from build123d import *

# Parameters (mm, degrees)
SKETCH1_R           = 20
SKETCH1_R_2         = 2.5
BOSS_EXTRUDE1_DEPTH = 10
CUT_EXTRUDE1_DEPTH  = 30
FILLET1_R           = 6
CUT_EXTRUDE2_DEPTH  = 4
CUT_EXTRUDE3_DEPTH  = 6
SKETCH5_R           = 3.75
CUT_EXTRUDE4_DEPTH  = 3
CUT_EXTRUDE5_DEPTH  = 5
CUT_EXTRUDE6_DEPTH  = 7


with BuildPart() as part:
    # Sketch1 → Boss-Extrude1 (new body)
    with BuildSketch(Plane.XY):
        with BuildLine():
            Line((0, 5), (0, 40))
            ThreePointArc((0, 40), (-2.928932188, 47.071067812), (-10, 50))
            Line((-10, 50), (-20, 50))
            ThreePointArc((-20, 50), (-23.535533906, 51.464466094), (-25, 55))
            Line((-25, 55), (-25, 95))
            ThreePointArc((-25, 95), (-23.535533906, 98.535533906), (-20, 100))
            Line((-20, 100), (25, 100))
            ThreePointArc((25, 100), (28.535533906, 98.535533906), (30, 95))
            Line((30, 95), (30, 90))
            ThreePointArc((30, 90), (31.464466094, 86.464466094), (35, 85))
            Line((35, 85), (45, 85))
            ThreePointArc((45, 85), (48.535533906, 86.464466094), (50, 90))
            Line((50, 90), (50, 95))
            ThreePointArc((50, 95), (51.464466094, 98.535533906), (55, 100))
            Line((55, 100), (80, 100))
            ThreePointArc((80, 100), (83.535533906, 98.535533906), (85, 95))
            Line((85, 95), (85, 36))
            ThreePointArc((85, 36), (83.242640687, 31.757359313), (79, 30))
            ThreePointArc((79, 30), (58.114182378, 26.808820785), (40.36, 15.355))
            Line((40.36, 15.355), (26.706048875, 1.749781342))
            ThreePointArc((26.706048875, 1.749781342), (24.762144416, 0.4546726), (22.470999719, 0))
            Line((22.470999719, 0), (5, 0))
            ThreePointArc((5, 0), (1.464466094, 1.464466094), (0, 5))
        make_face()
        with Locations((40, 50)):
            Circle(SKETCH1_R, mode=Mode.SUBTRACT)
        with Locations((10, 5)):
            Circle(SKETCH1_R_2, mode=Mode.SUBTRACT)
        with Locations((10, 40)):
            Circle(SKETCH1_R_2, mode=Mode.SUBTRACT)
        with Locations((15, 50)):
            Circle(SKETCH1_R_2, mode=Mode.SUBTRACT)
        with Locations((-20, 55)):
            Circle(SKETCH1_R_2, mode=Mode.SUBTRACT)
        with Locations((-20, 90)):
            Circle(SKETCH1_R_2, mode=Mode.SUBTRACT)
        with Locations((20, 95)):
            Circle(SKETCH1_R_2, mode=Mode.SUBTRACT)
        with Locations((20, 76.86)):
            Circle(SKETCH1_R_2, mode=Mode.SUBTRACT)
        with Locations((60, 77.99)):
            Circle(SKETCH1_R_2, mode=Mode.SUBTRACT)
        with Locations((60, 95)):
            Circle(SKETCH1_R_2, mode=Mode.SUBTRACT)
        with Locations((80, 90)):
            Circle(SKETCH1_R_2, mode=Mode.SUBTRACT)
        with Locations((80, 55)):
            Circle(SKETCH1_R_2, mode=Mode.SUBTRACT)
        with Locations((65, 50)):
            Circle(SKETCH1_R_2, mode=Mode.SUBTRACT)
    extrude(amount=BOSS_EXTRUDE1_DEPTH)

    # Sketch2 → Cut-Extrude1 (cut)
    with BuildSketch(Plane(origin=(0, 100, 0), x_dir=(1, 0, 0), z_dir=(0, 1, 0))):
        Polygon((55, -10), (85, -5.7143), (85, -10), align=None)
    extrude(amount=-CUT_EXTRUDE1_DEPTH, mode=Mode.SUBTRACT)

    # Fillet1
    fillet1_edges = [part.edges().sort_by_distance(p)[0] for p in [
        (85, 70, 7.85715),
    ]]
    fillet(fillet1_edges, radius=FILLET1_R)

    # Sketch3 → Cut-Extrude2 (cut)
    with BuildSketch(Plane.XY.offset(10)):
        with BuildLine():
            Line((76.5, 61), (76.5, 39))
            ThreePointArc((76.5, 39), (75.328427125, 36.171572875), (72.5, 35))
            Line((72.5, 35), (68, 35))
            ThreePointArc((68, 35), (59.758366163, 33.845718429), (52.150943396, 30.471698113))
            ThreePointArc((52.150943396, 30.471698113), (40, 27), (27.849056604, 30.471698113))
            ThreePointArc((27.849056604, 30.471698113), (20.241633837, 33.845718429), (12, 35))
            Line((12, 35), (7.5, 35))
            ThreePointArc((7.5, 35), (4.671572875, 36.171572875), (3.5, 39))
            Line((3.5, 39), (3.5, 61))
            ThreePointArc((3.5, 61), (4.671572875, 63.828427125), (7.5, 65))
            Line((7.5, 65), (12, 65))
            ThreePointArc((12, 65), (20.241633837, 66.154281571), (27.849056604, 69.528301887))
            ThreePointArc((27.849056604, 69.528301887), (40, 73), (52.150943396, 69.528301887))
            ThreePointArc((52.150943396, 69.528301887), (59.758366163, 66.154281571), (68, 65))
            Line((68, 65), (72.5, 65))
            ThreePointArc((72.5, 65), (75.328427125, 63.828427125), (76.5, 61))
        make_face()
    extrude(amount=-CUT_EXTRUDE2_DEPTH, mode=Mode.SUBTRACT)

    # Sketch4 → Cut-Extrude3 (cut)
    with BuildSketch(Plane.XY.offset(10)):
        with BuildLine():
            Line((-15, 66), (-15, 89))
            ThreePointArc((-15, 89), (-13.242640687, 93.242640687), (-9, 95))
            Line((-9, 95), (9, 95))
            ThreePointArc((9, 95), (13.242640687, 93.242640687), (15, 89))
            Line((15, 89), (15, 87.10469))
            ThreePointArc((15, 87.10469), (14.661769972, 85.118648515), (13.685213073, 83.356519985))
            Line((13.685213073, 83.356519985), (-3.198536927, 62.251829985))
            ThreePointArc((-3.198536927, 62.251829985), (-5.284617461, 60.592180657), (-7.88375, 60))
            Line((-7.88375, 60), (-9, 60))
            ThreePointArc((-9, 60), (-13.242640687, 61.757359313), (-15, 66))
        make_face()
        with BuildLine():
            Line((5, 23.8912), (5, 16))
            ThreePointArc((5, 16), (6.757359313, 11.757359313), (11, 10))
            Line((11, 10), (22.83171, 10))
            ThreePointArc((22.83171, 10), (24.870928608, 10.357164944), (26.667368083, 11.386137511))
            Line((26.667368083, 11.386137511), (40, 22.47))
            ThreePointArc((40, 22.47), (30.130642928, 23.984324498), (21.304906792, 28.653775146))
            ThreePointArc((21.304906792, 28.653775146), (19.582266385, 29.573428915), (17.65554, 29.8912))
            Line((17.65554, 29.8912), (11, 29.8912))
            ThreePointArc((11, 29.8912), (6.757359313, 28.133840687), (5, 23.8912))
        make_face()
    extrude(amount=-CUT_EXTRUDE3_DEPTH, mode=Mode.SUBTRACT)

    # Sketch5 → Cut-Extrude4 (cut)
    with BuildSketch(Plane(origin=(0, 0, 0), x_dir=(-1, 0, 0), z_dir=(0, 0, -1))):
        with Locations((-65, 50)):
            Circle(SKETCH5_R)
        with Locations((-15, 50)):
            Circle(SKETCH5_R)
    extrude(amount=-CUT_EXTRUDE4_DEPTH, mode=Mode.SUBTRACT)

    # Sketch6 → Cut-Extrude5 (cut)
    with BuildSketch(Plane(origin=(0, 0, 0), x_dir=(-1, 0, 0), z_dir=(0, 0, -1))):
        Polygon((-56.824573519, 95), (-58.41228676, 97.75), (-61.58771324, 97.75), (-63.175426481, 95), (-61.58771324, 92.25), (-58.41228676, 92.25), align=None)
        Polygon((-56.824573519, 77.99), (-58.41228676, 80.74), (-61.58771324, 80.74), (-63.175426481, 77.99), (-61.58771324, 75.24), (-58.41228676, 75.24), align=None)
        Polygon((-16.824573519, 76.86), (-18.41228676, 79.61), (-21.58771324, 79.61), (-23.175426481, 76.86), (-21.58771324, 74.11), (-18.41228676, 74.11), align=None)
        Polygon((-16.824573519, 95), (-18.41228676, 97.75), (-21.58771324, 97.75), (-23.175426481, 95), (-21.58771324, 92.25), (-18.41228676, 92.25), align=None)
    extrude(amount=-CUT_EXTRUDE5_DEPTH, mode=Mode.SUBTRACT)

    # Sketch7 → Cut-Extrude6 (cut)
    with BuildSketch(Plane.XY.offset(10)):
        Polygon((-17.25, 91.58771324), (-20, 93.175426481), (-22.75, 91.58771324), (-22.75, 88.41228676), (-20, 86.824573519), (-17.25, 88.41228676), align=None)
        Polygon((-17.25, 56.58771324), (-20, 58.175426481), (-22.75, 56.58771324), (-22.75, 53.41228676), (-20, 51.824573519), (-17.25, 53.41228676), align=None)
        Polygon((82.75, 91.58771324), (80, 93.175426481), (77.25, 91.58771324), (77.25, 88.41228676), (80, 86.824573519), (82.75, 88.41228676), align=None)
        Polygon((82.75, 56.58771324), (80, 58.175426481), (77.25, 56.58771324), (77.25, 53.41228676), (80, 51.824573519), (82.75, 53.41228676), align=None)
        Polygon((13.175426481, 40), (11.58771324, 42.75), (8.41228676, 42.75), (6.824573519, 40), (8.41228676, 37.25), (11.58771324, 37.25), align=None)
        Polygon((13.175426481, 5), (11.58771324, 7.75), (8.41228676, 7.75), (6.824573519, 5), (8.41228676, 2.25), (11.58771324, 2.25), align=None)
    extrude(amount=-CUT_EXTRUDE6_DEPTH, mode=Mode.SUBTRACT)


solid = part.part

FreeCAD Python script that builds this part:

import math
import FreeCAD as App
import Part
import Sketcher
Q = App.Units.Quantity


def edges_at(feature, points):
    """Names of the edges that pass closest to the given points."""
    edges = feature.Shape.Edges
    near = lambda p: min(range(len(edges)), key=lambda i: edges[i].distToShape(Part.Vertex(*p))[0])
    return sorted({f"Edge{near(p) + 1}" for p in points})

doc = App.newDocument("Part")
body = doc.addObject("PartDesign::Body", "Body")

# Sketch on XY plane
sketch1 = body.newObject("Sketcher::SketchObject", "Sketch")
sketch1.AttachmentSupport = (doc.getObject("XY_Plane"), [""])
sketch1.MapMode = "FlatFace"
sketch1.addGeometry([
    Part.LineSegment(App.Vector(0, 40, 0), App.Vector(0, 5, 0)),  # 0
    Part.ArcOfCircle(Part.Circle(App.Vector(5, 5, 0), App.Vector(0, 0, 1), 5), math.radians(180), math.radians(270)),  # 1
    Part.LineSegment(App.Vector(5, 0, 0), App.Vector(22.5, 0, 0)),  # 2
    Part.ArcOfCircle(Part.Circle(App.Vector(22.5, 6, 0), App.Vector(0, 0, 1), 6), math.radians(-90), math.radians(-45)),  # 3
    Part.LineSegment(App.Vector(26.7, 1.7, 0), App.Vector(40.4, 15.4, 0)),  # 4
    Part.ArcOfCircle(Part.Circle(App.Vector(76, -20.4, 0), App.Vector(0, 0, 1), 50.5), math.radians(87), math.radians(135)),  # 5
    Part.ArcOfCircle(Part.Circle(App.Vector(79, 36, 0), App.Vector(0, 0, 1), 6), math.radians(-90), math.radians(0)),  # 6
    Part.LineSegment(App.Vector(85, 36, 0), App.Vector(85, 95, 0)),  # 7
    Part.ArcOfCircle(Part.Circle(App.Vector(80, 95, 0), App.Vector(0, 0, 1), 5), math.radians(0), math.radians(90)),  # 8
    Part.LineSegment(App.Vector(80, 100, 0), App.Vector(55, 100, 0)),  # 9
    Part.ArcOfCircle(Part.Circle(App.Vector(55, 95, 0), App.Vector(0, 0, 1), 5), math.radians(90), math.radians(180)),  # 10
    Part.LineSegment(App.Vector(50, 95, 0), App.Vector(50, 90, 0)),  # 11
    Part.ArcOfCircle(Part.Circle(App.Vector(45, 90, 0), App.Vector(0, 0, 1), 5), math.radians(-90), math.radians(0)),  # 12
    Part.LineSegment(App.Vector(45, 85, 0), App.Vector(35, 85, 0)),  # 13
    Part.ArcOfCircle(Part.Circle(App.Vector(35, 90, 0), App.Vector(0, 0, 1), 5), math.radians(180), math.radians(270)),  # 14
    Part.LineSegment(App.Vector(30, 90, 0), App.Vector(30, 95, 0)),  # 15
    Part.ArcOfCircle(Part.Circle(App.Vector(25, 95, 0), App.Vector(0, 0, 1), 5), math.radians(0), math.radians(90)),  # 16
    Part.LineSegment(App.Vector(25, 100, 0), App.Vector(-20, 100, 0)),  # 17
    Part.ArcOfCircle(Part.Circle(App.Vector(-20, 95, 0), App.Vector(0, 0, 1), 5), math.radians(90), math.radians(180)),  # 18
    Part.LineSegment(App.Vector(-25, 95, 0), App.Vector(-25, 55, 0)),  # 19
    Part.ArcOfCircle(Part.Circle(App.Vector(-20, 55, 0), App.Vector(0, 0, 1), 5), math.radians(180), math.radians(270)),  # 20
    Part.LineSegment(App.Vector(-20, 50, 0), App.Vector(-10, 50, 0)),  # 21
    Part.ArcOfCircle(Part.Circle(App.Vector(-10, 40, 0), App.Vector(0, 0, 1), 10), math.radians(0), math.radians(90)),  # 22
    Part.Circle(App.Vector(10, 5, 0), App.Vector(0, 0, 1), 2.5),  # 23
    Part.Circle(App.Vector(10, 40, 0), App.Vector(0, 0, 1), 2.5),  # 24
    Part.Circle(App.Vector(80, 55, 0), App.Vector(0, 0, 1), 2.5),  # 25
    Part.Circle(App.Vector(65, 50, 0), App.Vector(0, 0, 1), 2.5),  # 26
    Part.Circle(App.Vector(40, 50, 0), App.Vector(0, 0, 1), 20),  # 27
    Part.Circle(App.Vector(60, 78, 0), App.Vector(0, 0, 1), 2.5),  # 28
    Part.Circle(App.Vector(80, 90, 0), App.Vector(0, 0, 1), 2.5),  # 29
    Part.Circle(App.Vector(60, 95, 0), App.Vector(0, 0, 1), 2.5),  # 30
    Part.Circle(App.Vector(15, 50, 0), App.Vector(0, 0, 1), 2.5),  # 31
    Part.Circle(App.Vector(-20, 55, 0), App.Vector(0, 0, 1), 2.5),  # 32
    Part.Circle(App.Vector(20, 76.9, 0), App.Vector(0, 0, 1), 2.5),  # 33
    Part.Circle(App.Vector(20, 95, 0), App.Vector(0, 0, 1), 2.5),  # 34
    Part.Circle(App.Vector(-20, 90, 0), App.Vector(0, 0, 1), 2.5),  # 35
], False)
sketch1.addConstraint([
    Sketcher.Constraint("Tangent", 0, 2, 1, 1),
    Sketcher.Constraint("Tangent", 1, 2, 2, 1),
    Sketcher.Constraint("Tangent", 2, 2, 3, 1),
    Sketcher.Constraint("Tangent", 3, 2, 4, 1),
    Sketcher.Constraint("Tangent", 4, 2, 5, 2),
    Sketcher.Constraint("Coincident", 5, 1, 6, 1),
    Sketcher.Constraint("Tangent", 6, 2, 7, 1),
    Sketcher.Constraint("Tangent", 7, 2, 8, 1),
    Sketcher.Constraint("Tangent", 8, 2, 9, 1),
    Sketcher.Constraint("Tangent", 9, 2, 10, 1),
    Sketcher.Constraint("Tangent", 10, 2, 11, 1),
    Sketcher.Constraint("Tangent", 11, 2, 12, 2),
    Sketcher.Constraint("Tangent", 12, 1, 13, 1),
    Sketcher.Constraint("Tangent", 13, 2, 14, 2),
    Sketcher.Constraint("Tangent", 14, 1, 15, 1),
    Sketcher.Constraint("Tangent", 15, 2, 16, 1),
    Sketcher.Constraint("Tangent", 16, 2, 17, 1),
    Sketcher.Constraint("Tangent", 17, 2, 18, 1),
    Sketcher.Constraint("Tangent", 18, 2, 19, 1),
    Sketcher.Constraint("Tangent", 19, 2, 20, 1),
    Sketcher.Constraint("Tangent", 20, 2, 21, 1),
    Sketcher.Constraint("Tangent", 21, 2, 22, 2),
    Sketcher.Constraint("Tangent", 22, 1, 0, 1),
    Sketcher.Constraint("Vertical", 0),
    Sketcher.Constraint("Horizontal", 2),
    Sketcher.Constraint("Vertical", 7),
    Sketcher.Constraint("Horizontal", 9),
    Sketcher.Constraint("Vertical", 11),
    Sketcher.Constraint("Horizontal", 13),
    Sketcher.Constraint("Vertical", 15),
    Sketcher.Constraint("Horizontal", 17),
    Sketcher.Constraint("Vertical", 19),
    Sketcher.Constraint("Horizontal", 21),
    Sketcher.Constraint("Coincident", 32, 3, 20, 3),
    Sketcher.Constraint("Equal", 3, 6),
    Sketcher.Constraint("Equal", 1, 8),
    Sketcher.Constraint("Equal", 8, 10),
    Sketcher.Constraint("Equal", 10, 12),
    Sketcher.Constraint("Equal", 12, 14),
    Sketcher.Constraint("Equal", 14, 16),
    Sketcher.Constraint("Equal", 16, 18),
    Sketcher.Constraint("Equal", 18, 20),
    Sketcher.Constraint("Equal", 23, 24),
    Sketcher.Constraint("Equal", 24, 25),
    Sketcher.Constraint("Equal", 25, 26),
    Sketcher.Constraint("Equal", 26, 28),
    Sketcher.Constraint("Equal", 28, 29),
    Sketcher.Constraint("Equal", 29, 30),
    Sketcher.Constraint("Equal", 30, 31),
    Sketcher.Constraint("Equal", 31, 32),
    Sketcher.Constraint("Equal", 32, 33),
    Sketcher.Constraint("Equal", 33, 34),
    Sketcher.Constraint("Equal", 34, 35),
    Sketcher.Constraint("Symmetric", 22, 3, 24, 3, -2),
    Sketcher.Constraint("Symmetric", 18, 3, 34, 3, -2),
    Sketcher.Constraint("PointOnObject", 0, 2, -2),
    Sketcher.Constraint("PointOnObject", 1, 2, -1),
    Sketcher.Constraint("Horizontal", 10, 3, 16, 3),
    Sketcher.Constraint("Horizontal", 1, 3, 23, 3),
    Sketcher.Constraint("Horizontal", 20, 3, 25, 3),
    Sketcher.Constraint("Horizontal", 26, 3, 27, 3),
    Sketcher.Constraint("Horizontal", 14, 3, 29, 3),
    Sketcher.Constraint("Horizontal", 18, 3, 30, 3),
    Sketcher.Constraint("Horizontal", 27, 3, 31, 3),
    Sketcher.Constraint("Horizontal", 29, 3, 35, 3),
    Sketcher.Constraint("Horizontal", 31, 3, 20, 2),
    Sketcher.Constraint("Vertical", 23, 3, 24, 3),
    Sketcher.Constraint("Vertical", 8, 3, 25, 3),
    Sketcher.Constraint("Vertical", 25, 3, 29, 3),
    Sketcher.Constraint("Vertical", 28, 3, 30, 3),
    Sketcher.Constraint("Vertical", 33, 3, 34, 3),
    Sketcher.Constraint("Vertical", 32, 3, 35, 3),
    Sketcher.Constraint("Vertical", 6, 3, 5, 1),
    Sketcher.Constraint("Equal", 13, 21),
    Sketcher.Constraint("Diameter", 23, 5.0),
    Sketcher.Constraint("Diameter", 27, 40.0),
    Sketcher.Constraint("Radius", 1, 5.0),
    Sketcher.Constraint("Radius", 3, 6.0),
    Sketcher.Constraint("Radius", 22, 10.0),
    Sketcher.Constraint("DistanceX", 9, 2, 9, 1, 25.0),
    Sketcher.Constraint("DistanceX", 13, 2, 13, 1, 10.0),
    Sketcher.Constraint("DistanceX", 17, 2, 17, 1, 45.0),
    Sketcher.Constraint("DistanceY", 0, 2, 0, 1, 35.0),
    Sketcher.Constraint("DistanceY", 7, 1, 7, 2, 59.0),
    Sketcher.Constraint("DistanceY", 11, 2, 11, 1, 5.0),
    Sketcher.Constraint("DistanceY", 19, 2, 19, 1, 40.0),
    Sketcher.Constraint("DistanceX", -1, 1, 26, 3, 65.0),
    Sketcher.Constraint("DistanceX", -1, 1, 27, 3, 40.0),
    Sketcher.Constraint("DistanceX", -1, 1, 28, 3, 60.0),
    Sketcher.Constraint("DistanceX", -1, 1, 31, 3, 15.0),
    Sketcher.Constraint("DistanceX", 2, 1, 2, 2, 17.471),
    Sketcher.Constraint("DistanceY", -1, 1, 28, 3, 77.99),
    Sketcher.Constraint("DistanceY", -1, 1, 33, 3, 76.86),
    Sketcher.Constraint("DistanceX", -1, 1, 4, 2, 40.36),
    Sketcher.Constraint("DistanceY", -1, 1, 4, 2, 15.355),
])
pad1 = body.newObject("PartDesign::Pad", "Pad")
pad1.Profile = sketch1
pad1.Length = 10

# Sketch on XZ plane
sketch2 = body.newObject("Sketcher::SketchObject", "Sketch001")
sketch2.AttachmentSupport = (doc.getObject("XZ_Plane"), [""])
sketch2.MapMode = "FlatFace"
sketch2.AttachmentOffset = App.Placement(App.Vector(0, 0, -100), App.Rotation())
sketch2.addGeometry([
    Part.LineSegment(App.Vector(85, 5.7, 0), App.Vector(55, 10, 0)),
    Part.LineSegment(App.Vector(55, 10, 0), App.Vector(85, 10, 0)),
    Part.LineSegment(App.Vector(85, 10, 0), App.Vector(85, 5.7, 0)),
], False)
sketch2.addConstraint([
    Sketcher.Constraint("Coincident", 0, 2, 1, 1),
    Sketcher.Constraint("Coincident", 1, 2, 2, 1),
    Sketcher.Constraint("Coincident", 2, 2, 0, 1),
    Sketcher.Constraint("Horizontal", 1),
    Sketcher.Constraint("Vertical", 2),
    Sketcher.Constraint("DistanceX", 1, 1, 1, 2, 30.0),
    Sketcher.Constraint("DistanceX", -1, 1, 0, 2, 55.0),
    Sketcher.Constraint("DistanceY", -1, 1, 0, 2, 10.0),
    Sketcher.Constraint("DistanceY", 2, 2, 2, 1, 4.2857),
])
pocket1 = body.newObject("PartDesign::Pocket", "Pocket")
pocket1.Profile = sketch2
pocket1.Length = 30
pocket1.Reversed = True
doc.recompute()

fillet = body.newObject("PartDesign::Fillet", "Fillet")
fillet.Base = (pocket1, edges_at(pocket1, [(85, 70, 7.857)]))
fillet.Radius = 6

# Sketch on XY plane
sketch3 = body.newObject("Sketcher::SketchObject", "Sketch002")
sketch3.AttachmentSupport = (doc.getObject("XY_Plane"), [""])
sketch3.MapMode = "FlatFace"
sketch3.AttachmentOffset = App.Placement(App.Vector(0, 0, 10), App.Rotation())
sketch3.addGeometry([
    Part.LineSegment(App.Vector(76.5, 39, 0), App.Vector(76.5, 61, 0)),  # 0
    Part.ArcOfCircle(Part.Circle(App.Vector(72.5, 61, 0), App.Vector(0, 0, 1), 4), math.radians(0), math.radians(90)),  # 1
    Part.LineSegment(App.Vector(72.5, 65, 0), App.Vector(68, 65, 0)),  # 2
    Part.ArcOfCircle(Part.Circle(App.Vector(68, 95, 0), App.Vector(0, 0, 1), 30), math.radians(-122), math.radians(-90)),  # 3
    Part.ArcOfCircle(Part.Circle(App.Vector(40, 50, 0), App.Vector(0, 0, 1), 23), math.radians(58), math.radians(122)),  # 4
    Part.ArcOfCircle(Part.Circle(App.Vector(12, 95, 0), App.Vector(0, 0, 1), 30), math.radians(-90), math.radians(-58)),  # 5
    Part.LineSegment(App.Vector(12, 65, 0), App.Vector(7.5, 65, 0)),  # 6
    Part.ArcOfCircle(Part.Circle(App.Vector(7.5, 61, 0), App.Vector(0, 0, 1), 4), math.radians(90), math.radians(180)),  # 7
    Part.LineSegment(App.Vector(3.5, 61, 0), App.Vector(3.5, 39, 0)),  # 8
    Part.ArcOfCircle(Part.Circle(App.Vector(7.5, 39, 0), App.Vector(0, 0, 1), 4), math.radians(180), math.radians(270)),  # 9
    Part.LineSegment(App.Vector(7.5, 35, 0), App.Vector(12, 35, 0)),  # 10
    Part.ArcOfCircle(Part.Circle(App.Vector(12, 5, 0), App.Vector(0, 0, 1), 30), math.radians(58), math.radians(90)),  # 11
    Part.ArcOfCircle(Part.Circle(App.Vector(40, 50, 0), App.Vector(0, 0, 1), 23), math.radians(-122), math.radians(-58)),  # 12
    Part.ArcOfCircle(Part.Circle(App.Vector(68, 5, 0), App.Vector(0, 0, 1), 30), math.radians(90), math.radians(122)),  # 13
    Part.LineSegment(App.Vector(68, 35, 0), App.Vector(72.5, 35, 0)),  # 14
    Part.ArcOfCircle(Part.Circle(App.Vector(72.5, 39, 0), App.Vector(0, 0, 1), 4), math.radians(-90), math.radians(0)),  # 15
], False)
sketch3.addConstraint([
    Sketcher.Constraint("Tangent", 0, 2, 1, 1),
    Sketcher.Constraint("Tangent", 1, 2, 2, 1),
    Sketcher.Constraint("Tangent", 2, 2, 3, 2),
    Sketcher.Constraint("Tangent", 3, 1, 4, 1),
    Sketcher.Constraint("Tangent", 4, 2, 5, 2),
    Sketcher.Constraint("Tangent", 5, 1, 6, 1),
    Sketcher.Constraint("Tangent", 6, 2, 7, 1),
    Sketcher.Constraint("Tangent", 7, 2, 8, 1),
    Sketcher.Constraint("Tangent", 8, 2, 9, 1),
    Sketcher.Constraint("Tangent", 9, 2, 10, 1),
    Sketcher.Constraint("Tangent", 10, 2, 11, 2),
    Sketcher.Constraint("Tangent", 11, 1, 12, 1),
    Sketcher.Constraint("Tangent", 12, 2, 13, 2),
    Sketcher.Constraint("Tangent", 13, 1, 14, 1),
    Sketcher.Constraint("Tangent", 14, 2, 15, 1),
    Sketcher.Constraint("Tangent", 15, 2, 0, 1),
    Sketcher.Constraint("Vertical", 0),
    Sketcher.Constraint("Horizontal", 2),
    Sketcher.Constraint("Horizontal", 6),
    Sketcher.Constraint("Vertical", 8),
    Sketcher.Constraint("Horizontal", 10),
    Sketcher.Constraint("Horizontal", 14),
    Sketcher.Constraint("Coincident", 12, 3, 4, 3),
    Sketcher.Constraint("Equal", 3, 5),
    Sketcher.Constraint("Equal", 1, 7),
    Sketcher.Constraint("Equal", 7, 9),
    Sketcher.Constraint("Equal", 5, 11),
    Sketcher.Constraint("Equal", 4, 12),
    Sketcher.Constraint("Equal", 11, 13),
    Sketcher.Constraint("Equal", 9, 15),
    Sketcher.Constraint("Horizontal", 3, 3, 5, 3),
    Sketcher.Constraint("Horizontal", 11, 3, 13, 3),
    Sketcher.Constraint("Vertical", 5, 3, 11, 3),
    Sketcher.Constraint("Equal", 2, 6),
    Sketcher.Constraint("Radius", 1, 4.0),
    Sketcher.Constraint("Radius", 3, 30.0),
    Sketcher.Constraint("Radius", 4, 23.0),
    Sketcher.Constraint("DistanceY", 0, 1, 0, 2, 22.0),
    Sketcher.Constraint("DistanceX", 2, 2, 2, 1, 4.5),
    Sketcher.Constraint("DistanceY", -1, 1, 1, 3, 61.0),
    Sketcher.Constraint("DistanceX", -1, 1, 3, 3, 68.0),
])
pocket2 = body.newObject("PartDesign::Pocket", "Pocket001")
pocket2.Profile = sketch3
pocket2.Length = 4

# Sketch on XY plane
sketch4 = body.newObject("Sketcher::SketchObject", "Sketch003")
sketch4.AttachmentSupport = (doc.getObject("XY_Plane"), [""])
sketch4.MapMode = "FlatFace"
sketch4.AttachmentOffset = App.Placement(App.Vector(0, 0, 10), App.Rotation())
sketch4.addGeometry([
    Part.LineSegment(App.Vector(-15, 89, 0), App.Vector(-15, 66, 0)),  # 0
    Part.ArcOfCircle(Part.Circle(App.Vector(-9, 66, 0), App.Vector(0, 0, 1), 6), math.radians(180), math.radians(270)),  # 1
    Part.LineSegment(App.Vector(-9, 60, 0), App.Vector(-7.9, 60, 0)),  # 2
    Part.ArcOfCircle(Part.Circle(App.Vector(-7.9, 66, 0), App.Vector(0, 0, 1), 6), math.radians(-90), math.radians(-39)),  # 3
    Part.LineSegment(App.Vector(-3.2, 62.3, 0), App.Vector(13.7, 83.4, 0)),  # 4
    Part.ArcOfCircle(Part.Circle(App.Vector(9, 87.1, 0), App.Vector(0, 0, 1), 6), math.radians(-39), math.radians(0)),  # 5
    Part.LineSegment(App.Vector(15, 87.1, 0), App.Vector(15, 89, 0)),  # 6
    Part.ArcOfCircle(Part.Circle(App.Vector(9, 89, 0), App.Vector(0, 0, 1), 6), math.radians(0), math.radians(90)),  # 7
    Part.LineSegment(App.Vector(9, 95, 0), App.Vector(-9, 95, 0)),  # 8
    Part.ArcOfCircle(Part.Circle(App.Vector(-9, 89, 0), App.Vector(0, 0, 1), 6), math.radians(90), math.radians(180)),  # 9
    Part.LineSegment(App.Vector(5, 23.9, 0), App.Vector(5, 16, 0)),  # 10
    Part.ArcOfCircle(Part.Circle(App.Vector(11, 16, 0), App.Vector(0, 0, 1), 6), math.radians(180), math.radians(270)),  # 11
    Part.LineSegment(App.Vector(11, 10, 0), App.Vector(22.8, 10, 0)),  # 12
    Part.ArcOfCircle(Part.Circle(App.Vector(22.8, 16, 0), App.Vector(0, 0, 1), 6), math.radians(-90), math.radians(-50)),  # 13
    Part.LineSegment(App.Vector(26.7, 11.4, 0), App.Vector(40, 22.5, 0)),  # 14
    Part.ArcOfCircle(Part.Circle(App.Vector(39.6, 52.5, 0), App.Vector(0, 0, 1), 30), math.radians(-127), math.radians(-89)),  # 15
    Part.ArcOfCircle(Part.Circle(App.Vector(17.7, 23.9, 0), App.Vector(0, 0, 1), 6), math.radians(53), math.radians(90)),  # 16
    Part.LineSegment(App.Vector(17.7, 29.9, 0), App.Vector(11, 29.9, 0)),  # 17
    Part.ArcOfCircle(Part.Circle(App.Vector(11, 23.9, 0), App.Vector(0, 0, 1), 6), math.radians(90), math.radians(180)),  # 18
], False)
sketch4.addConstraint([
    Sketcher.Constraint("Tangent", 0, 2, 1, 1),
    Sketcher.Constraint("Tangent", 1, 2, 2, 1),
    Sketcher.Constraint("Tangent", 2, 2, 3, 1),
    Sketcher.Constraint("Tangent", 3, 2, 4, 1),
    Sketcher.Constraint("Tangent", 4, 2, 5, 1),
    Sketcher.Constraint("Tangent", 5, 2, 6, 1),
    Sketcher.Constraint("Tangent", 6, 2, 7, 1),
    Sketcher.Constraint("Tangent", 7, 2, 8, 1),
    Sketcher.Constraint("Tangent", 8, 2, 9, 1),
    Sketcher.Constraint("Tangent", 9, 2, 0, 1),
    Sketcher.Constraint("Tangent", 10, 2, 11, 1),
    Sketcher.Constraint("Tangent", 11, 2, 12, 1),
    Sketcher.Constraint("Tangent", 12, 2, 13, 1),
    Sketcher.Constraint("Tangent", 13, 2, 14, 1),
    Sketcher.Constraint("Coincident", 14, 2, 15, 2),
    Sketcher.Constraint("Tangent", 15, 1, 16, 1),
    Sketcher.Constraint("Tangent", 16, 2, 17, 1),
    Sketcher.Constraint("Tangent", 17, 2, 18, 1),
    Sketcher.Constraint("Tangent", 18, 2, 10, 1),
    Sketcher.Constraint("Vertical", 0),
    Sketcher.Constraint("Horizontal", 2),
    Sketcher.Constraint("Vertical", 6),
    Sketcher.Constraint("Horizontal", 8),
    Sketcher.Constraint("Vertical", 10),
    Sketcher.Constraint("Horizontal", 12),
    Sketcher.Constraint("Horizontal", 17),
    Sketcher.Constraint("Equal", 1, 3),
    Sketcher.Constraint("Equal", 3, 5),
    Sketcher.Constraint("Equal", 5, 7),
    Sketcher.Constraint("Equal", 7, 9),
    Sketcher.Constraint("Equal", 9, 11),
    Sketcher.Constraint("Equal", 11, 13),
    Sketcher.Constraint("Equal", 13, 16),
    Sketcher.Constraint("Equal", 16, 18),
    Sketcher.Constraint("Radius", 1, 6.0),
    Sketcher.Constraint("Radius", 15, 30.0),
    Sketcher.Constraint("DistanceX", 8, 2, 8, 1, 18.0),
    Sketcher.Constraint("DistanceY", 0, 2, 0, 1, 23.0),
    Sketcher.Constraint("DistanceX", 1, 3, -1, 1, 9.0),
    Sketcher.Constraint("DistanceY", -1, 1, 1, 3, 66.0),
    Sketcher.Constraint("DistanceX", -1, 1, 11, 3, 11.0),
    Sketcher.Constraint("DistanceY", -1, 1, 11, 3, 16.0),
    Sketcher.Constraint("DistanceX", -1, 1, 14, 2, 40.0),
    Sketcher.Constraint("DistanceY", -1, 1, 14, 2, 22.47),
    Sketcher.Constraint("DistanceY", 10, 2, 10, 1, 7.8912),
    Sketcher.Constraint("DistanceX", 2, 1, 2, 2, 1.11625),
    Sketcher.Constraint("DistanceX", 12, 1, 12, 2, 11.83171),
    Sketcher.Constraint("DistanceX", 17, 2, 17, 1, 6.65554),
    Sketcher.Constraint("DistanceY", 6, 1, 6, 2, 1.89531),
])
pocket3 = body.newObject("PartDesign::Pocket", "Pocket002")
pocket3.Profile = sketch4
pocket3.Length = 6

# Sketch on XY plane
sketch5 = body.newObject("Sketcher::SketchObject", "Sketch004")
sketch5.AttachmentSupport = (doc.getObject("XY_Plane"), [""])
sketch5.MapMode = "FlatFace"
sketch5.addGeometry([
    Part.Circle(App.Vector(65, 50, 0), App.Vector(0, 0, 1), 3.8),
    Part.Circle(App.Vector(15, 50, 0), App.Vector(0, 0, 1), 3.8),
], False)
sketch5.addConstraint([
    Sketcher.Constraint("Equal", 0, 1),
    Sketcher.Constraint("Horizontal", 0, 3, 1, 3),
    Sketcher.Constraint("Diameter", 0, 7.5),
    Sketcher.Constraint("DistanceX", -1, 1, 0, 3, 65.0),
    Sketcher.Constraint("DistanceY", -1, 1, 0, 3, 50.0),
    Sketcher.Constraint("DistanceX", -1, 1, 1, 3, 15.0),
])
pocket4 = body.newObject("PartDesign::Pocket", "Pocket003")
pocket4.Profile = sketch5
pocket4.Length = 3
pocket4.Reversed = True

# Sketch on XY plane
sketch6 = body.newObject("Sketcher::SketchObject", "Sketch005")
sketch6.AttachmentSupport = (doc.getObject("XY_Plane"), [""])
sketch6.MapMode = "FlatFace"
sketch6.addGeometry([
    Part.LineSegment(App.Vector(56.8, 95, 0), App.Vector(58.4, 97.8, 0)),  # 0
    Part.LineSegment(App.Vector(58.4, 97.8, 0), App.Vector(61.6, 97.8, 0)),  # 1
    Part.LineSegment(App.Vector(61.6, 97.8, 0), App.Vector(63.2, 95, 0)),  # 2
    Part.LineSegment(App.Vector(63.2, 95, 0), App.Vector(61.6, 92.2, 0)),  # 3
    Part.LineSegment(App.Vector(61.6, 92.2, 0), App.Vector(58.4, 92.2, 0)),  # 4
    Part.LineSegment(App.Vector(58.4, 92.2, 0), App.Vector(56.8, 95, 0)),  # 5
    Part.LineSegment(App.Vector(56.8, 78, 0), App.Vector(58.4, 80.7, 0)),  # 6
    Part.LineSegment(App.Vector(58.4, 80.7, 0), App.Vector(61.6, 80.7, 0)),  # 7
    Part.LineSegment(App.Vector(61.6, 80.7, 0), App.Vector(63.2, 78, 0)),  # 8
    Part.LineSegment(App.Vector(63.2, 78, 0), App.Vector(61.6, 75.2, 0)),  # 9
    Part.LineSegment(App.Vector(61.6, 75.2, 0), App.Vector(58.4, 75.2, 0)),  # 10
    Part.LineSegment(App.Vector(58.4, 75.2, 0), App.Vector(56.8, 78, 0)),  # 11
    Part.LineSegment(App.Vector(16.8, 76.9, 0), App.Vector(18.4, 79.6, 0)),  # 12
    Part.LineSegment(App.Vector(18.4, 79.6, 0), App.Vector(21.6, 79.6, 0)),  # 13
    Part.LineSegment(App.Vector(21.6, 79.6, 0), App.Vector(23.2, 76.9, 0)),  # 14
    Part.LineSegment(App.Vector(23.2, 76.9, 0), App.Vector(21.6, 74.1, 0)),  # 15
    Part.LineSegment(App.Vector(21.6, 74.1, 0), App.Vector(18.4, 74.1, 0)),  # 16
    Part.LineSegment(App.Vector(18.4, 74.1, 0), App.Vector(16.8, 76.9, 0)),  # 17
    Part.LineSegment(App.Vector(16.8, 95, 0), App.Vector(18.4, 97.8, 0)),  # 18
    Part.LineSegment(App.Vector(18.4, 97.8, 0), App.Vector(21.6, 97.8, 0)),  # 19
    Part.LineSegment(App.Vector(21.6, 97.8, 0), App.Vector(23.2, 95, 0)),  # 20
    Part.LineSegment(App.Vector(23.2, 95, 0), App.Vector(21.6, 92.2, 0)),  # 21
    Part.LineSegment(App.Vector(21.6, 92.2, 0), App.Vector(18.4, 92.2, 0)),  # 22
    Part.LineSegment(App.Vector(18.4, 92.2, 0), App.Vector(16.8, 95, 0)),  # 23
], False)
sketch6.addConstraint([
    Sketcher.Constraint("Coincident", 0, 2, 1, 1),
    Sketcher.Constraint("Coincident", 1, 2, 2, 1),
    Sketcher.Constraint("Coincident", 2, 2, 3, 1),
    Sketcher.Constraint("Coincident", 3, 2, 4, 1),
    Sketcher.Constraint("Coincident", 4, 2, 5, 1),
    Sketcher.Constraint("Coincident", 5, 2, 0, 1),
    Sketcher.Constraint("Coincident", 6, 2, 7, 1),
    Sketcher.Constraint("Coincident", 7, 2, 8, 1),
    Sketcher.Constraint("Coincident", 8, 2, 9, 1),
    Sketcher.Constraint("Coincident", 9, 2, 10, 1),
    Sketcher.Constraint("Coincident", 10, 2, 11, 1),
    Sketcher.Constraint("Coincident", 11, 2, 6, 1),
    Sketcher.Constraint("Coincident", 12, 2, 13, 1),
    Sketcher.Constraint("Coincident", 13, 2, 14, 1),
    Sketcher.Constraint("Coincident", 14, 2, 15, 1),
    Sketcher.Constraint("Coincident", 15, 2, 16, 1),
    Sketcher.Constraint("Coincident", 16, 2, 17, 1),
    Sketcher.Constraint("Coincident", 17, 2, 12, 1),
    Sketcher.Constraint("Coincident", 18, 2, 19, 1),
    Sketcher.Constraint("Coincident", 19, 2, 20, 1),
    Sketcher.Constraint("Coincident", 20, 2, 21, 1),
    Sketcher.Constraint("Coincident", 21, 2, 22, 1),
    Sketcher.Constraint("Coincident", 22, 2, 23, 1),
    Sketcher.Constraint("Coincident", 23, 2, 18, 1),
    Sketcher.Constraint("Horizontal", 1),
    Sketcher.Constraint("Horizontal", 4),
    Sketcher.Constraint("Horizontal", 7),
    Sketcher.Constraint("Horizontal", 10),
    Sketcher.Constraint("Horizontal", 13),
    Sketcher.Constraint("Horizontal", 16),
    Sketcher.Constraint("Horizontal", 19),
    Sketcher.Constraint("Horizontal", 22),
    Sketcher.Constraint("Parallel", 0, 3),
    Sketcher.Constraint("Parallel", 2, 5),
    Sketcher.Constraint("Parallel", 3, 6),
    Sketcher.Constraint("Parallel", 5, 8),
    Sketcher.Constraint("Parallel", 6, 9),
    Sketcher.Constraint("Parallel", 8, 11),
    Sketcher.Constraint("Parallel", 9, 12),
    Sketcher.Constraint("Parallel", 11, 14),
    Sketcher.Constraint("Parallel", 12, 15),
    Sketcher.Constraint("Parallel", 14, 17),
    Sketcher.Constraint("Parallel", 15, 18),
    Sketcher.Constraint("Parallel", 17, 20),
    Sketcher.Constraint("Parallel", 18, 21),
    Sketcher.Constraint("Parallel", 20, 23),
    Sketcher.Constraint("Horizontal", 2, 2, 5, 2),
    Sketcher.Constraint("Horizontal", 8, 2, 11, 2),
    Sketcher.Constraint("Horizontal", 14, 2, 17, 2),
    Sketcher.Constraint("Horizontal", 1, 2, 18, 2),
    Sketcher.Constraint("Horizontal", 5, 2, 20, 2),
    Sketcher.Constraint("Horizontal", 4, 2, 21, 2),
    Sketcher.Constraint("Horizontal", 20, 2, 23, 2),
    Sketcher.Constraint("Vertical", 1, 2, 3, 2),
    Sketcher.Constraint("Vertical", 0, 2, 4, 2),
    Sketcher.Constraint("Vertical", 4, 2, 6, 2),
    Sketcher.Constraint("Vertical", 3, 2, 7, 2),
    Sketcher.Constraint("Vertical", 2, 2, 8, 2),
    Sketcher.Constraint("Vertical", 7, 2, 9, 2),
    Sketcher.Constraint("Vertical", 13, 2, 15, 2),
    Sketcher.Constraint("Vertical", 16, 2, 18, 2),
    Sketcher.Constraint("Vertical", 15, 2, 19, 2),
    Sketcher.Constraint("Vertical", 14, 2, 20, 2),
    Sketcher.Constraint("Equal", 10, 13),
    Sketcher.Constraint("Angle", 0, Q("60 deg")),
    Sketcher.Constraint("DistanceY", -1, 1, 2, 2, 95.0),
    Sketcher.Constraint("DistanceX", 12, 2, 6, 2, 40.0),
    Sketcher.Constraint("DistanceY", 3, 2, 1, 2, 5.5),
    Sketcher.Constraint("DistanceY", -1, 1, 6, 2, 80.74),
    Sketcher.Constraint("DistanceY", -1, 1, 12, 2, 79.61),
    Sketcher.Constraint("DistanceX", 1, 1, 1, 2, 3.175426),
    Sketcher.Constraint("DistanceX", -1, 1, 0, 2, 58.412287),
])
pocket5 = body.newObject("PartDesign::Pocket", "Pocket004")
pocket5.Profile = sketch6
pocket5.Length = 5
pocket5.Reversed = True

# Sketch on XY plane
sketch7 = body.newObject("Sketcher::SketchObject", "Sketch006")
sketch7.AttachmentSupport = (doc.getObject("XY_Plane"), [""])
sketch7.MapMode = "FlatFace"
sketch7.AttachmentOffset = App.Placement(App.Vector(0, 0, 10), App.Rotation())
sketch7.addGeometry([
    Part.LineSegment(App.Vector(-17.2, 91.6, 0), App.Vector(-20, 93.2, 0)),  # 0
    Part.LineSegment(App.Vector(-20, 93.2, 0), App.Vector(-22.8, 91.6, 0)),  # 1
    Part.LineSegment(App.Vector(-22.8, 91.6, 0), App.Vector(-22.8, 88.4, 0)),  # 2
    Part.LineSegment(App.Vector(-22.8, 88.4, 0), App.Vector(-20, 86.8, 0)),  # 3
    Part.LineSegment(App.Vector(-20, 86.8, 0), App.Vector(-17.2, 88.4, 0)),  # 4
    Part.LineSegment(App.Vector(-17.2, 88.4, 0), App.Vector(-17.2, 91.6, 0)),  # 5
    Part.LineSegment(App.Vector(-17.2, 56.6, 0), App.Vector(-20, 58.2, 0)),  # 6
    Part.LineSegment(App.Vector(-20, 58.2, 0), App.Vector(-22.8, 56.6, 0)),  # 7
    Part.LineSegment(App.Vector(-22.8, 56.6, 0), App.Vector(-22.8, 53.4, 0)),  # 8
    Part.LineSegment(App.Vector(-22.8, 53.4, 0), App.Vector(-20, 51.8, 0)),  # 9
    Part.LineSegment(App.Vector(-20, 51.8, 0), App.Vector(-17.2, 53.4, 0)),  # 10
    Part.LineSegment(App.Vector(-17.2, 53.4, 0), App.Vector(-17.2, 56.6, 0)),  # 11
    Part.LineSegment(App.Vector(82.8, 91.6, 0), App.Vector(80, 93.2, 0)),  # 12
    Part.LineSegment(App.Vector(80, 93.2, 0), App.Vector(77.2, 91.6, 0)),  # 13
    Part.LineSegment(App.Vector(77.2, 91.6, 0), App.Vector(77.2, 88.4, 0)),  # 14
    Part.LineSegment(App.Vector(77.2, 88.4, 0), App.Vector(80, 86.8, 0)),  # 15
    Part.LineSegment(App.Vector(80, 86.8, 0), App.Vector(82.8, 88.4, 0)),  # 16
    Part.LineSegment(App.Vector(82.8, 88.4, 0), App.Vector(82.8, 91.6, 0)),  # 17
    Part.LineSegment(App.Vector(82.8, 56.6, 0), App.Vector(80, 58.2, 0)),  # 18
    Part.LineSegment(App.Vector(80, 58.2, 0), App.Vector(77.2, 56.6, 0)),  # 19
    Part.LineSegment(App.Vector(77.2, 56.6, 0), App.Vector(77.2, 53.4, 0)),  # 20
    Part.LineSegment(App.Vector(77.2, 53.4, 0), App.Vector(80, 51.8, 0)),  # 21
    Part.LineSegment(App.Vector(80, 51.8, 0), App.Vector(82.8, 53.4, 0)),  # 22
    Part.LineSegment(App.Vector(82.8, 53.4, 0), App.Vector(82.8, 56.6, 0)),  # 23
    Part.LineSegment(App.Vector(13.2, 40, 0), App.Vector(11.6, 42.8, 0)),  # 24
    Part.LineSegment(App.Vector(11.6, 42.8, 0), App.Vector(8.4, 42.8, 0)),  # 25
    Part.LineSegment(App.Vector(8.4, 42.8, 0), App.Vector(6.8, 40, 0)),  # 26
    Part.LineSegment(App.Vector(6.8, 40, 0), App.Vector(8.4, 37.2, 0)),  # 27
    Part.LineSegment(App.Vector(8.4, 37.2, 0), App.Vector(11.6, 37.2, 0)),  # 28
    Part.LineSegment(App.Vector(11.6, 37.2, 0), App.Vector(13.2, 40, 0)),  # 29
    Part.LineSegment(App.Vector(13.2, 5, 0), App.Vector(11.6, 7.8, 0)),  # 30
    Part.LineSegment(App.Vector(11.6, 7.8, 0), App.Vector(8.4, 7.8, 0)),  # 31
    Part.LineSegment(App.Vector(8.4, 7.8, 0), App.Vector(6.8, 5, 0)),  # 32
    Part.LineSegment(App.Vector(6.8, 5, 0), App.Vector(8.4, 2.2, 0)),  # 33
    Part.LineSegment(App.Vector(8.4, 2.2, 0), App.Vector(11.6, 2.2, 0)),  # 34
    Part.LineSegment(App.Vector(11.6, 2.2, 0), App.Vector(13.2, 5, 0)),  # 35
], False)
sketch7.addConstraint([
    Sketcher.Constraint("Coincident", 0, 2, 1, 1),
    Sketcher.Constraint("Coincident", 1, 2, 2, 1),
    Sketcher.Constraint("Coincident", 2, 2, 3, 1),
    Sketcher.Constraint("Coincident", 3, 2, 4, 1),
    Sketcher.Constraint("Coincident", 4, 2, 5, 1),
    Sketcher.Constraint("Coincident", 5, 2, 0, 1),
    Sketcher.Constraint("Coincident", 6, 2, 7, 1),
    Sketcher.Constraint("Coincident", 7, 2, 8, 1),
    Sketcher.Constraint("Coincident", 8, 2, 9, 1),
    Sketcher.Constraint("Coincident", 9, 2, 10, 1),
    Sketcher.Constraint("Coincident", 10, 2, 11, 1),
    Sketcher.Constraint("Coincident", 11, 2, 6, 1),
    Sketcher.Constraint("Coincident", 12, 2, 13, 1),
    Sketcher.Constraint("Coincident", 13, 2, 14, 1),
    Sketcher.Constraint("Coincident", 14, 2, 15, 1),
    Sketcher.Constraint("Coincident", 15, 2, 16, 1),
    Sketcher.Constraint("Coincident", 16, 2, 17, 1),
    Sketcher.Constraint("Coincident", 17, 2, 12, 1),
    Sketcher.Constraint("Coincident", 18, 2, 19, 1),
    Sketcher.Constraint("Coincident", 19, 2, 20, 1),
    Sketcher.Constraint("Coincident", 20, 2, 21, 1),
    Sketcher.Constraint("Coincident", 21, 2, 22, 1),
    Sketcher.Constraint("Coincident", 22, 2, 23, 1),
    Sketcher.Constraint("Coincident", 23, 2, 18, 1),
    Sketcher.Constraint("Coincident", 24, 2, 25, 1),
    Sketcher.Constraint("Coincident", 25, 2, 26, 1),
    Sketcher.Constraint("Coincident", 26, 2, 27, 1),
    Sketcher.Constraint("Coincident", 27, 2, 28, 1),
    Sketcher.Constraint("Coincident", 28, 2, 29, 1),
    Sketcher.Constraint("Coincident", 29, 2, 24, 1),
    Sketcher.Constraint("Coincident", 30, 2, 31, 1),
    Sketcher.Constraint("Coincident", 31, 2, 32, 1),
    Sketcher.Constraint("Coincident", 32, 2, 33, 1),
    Sketcher.Constraint("Coincident", 33, 2, 34, 1),
    Sketcher.Constraint("Coincident", 34, 2, 35, 1),
    Sketcher.Constraint("Coincident", 35, 2, 30, 1),
    Sketcher.Constraint("Vertical", 2),
    Sketcher.Constraint("Vertical", 5),
    Sketcher.Constraint("Vertical", 8),
    Sketcher.Constraint("Vertical", 11),
    Sketcher.Constraint("Vertical", 14),
    Sketcher.Constraint("Vertical", 17),
    Sketcher.Constraint("Vertical", 20),
    Sketcher.Constraint("Vertical", 23),
    Sketcher.Constraint("Horizontal", 25),
    Sketcher.Constraint("Horizontal", 28),
    Sketcher.Constraint("Horizontal", 31),
    Sketcher.Constraint("Horizontal", 34),
    Sketcher.Constraint("Parallel", 0, 3),
    Sketcher.Constraint("Parallel", 1, 4),
    Sketcher.Constraint("Parallel", 3, 6),
    Sketcher.Constraint("Parallel", 4, 7),
    Sketcher.Constraint("Parallel", 6, 9),
    Sketcher.Constraint("Parallel", 7, 10),
    Sketcher.Constraint("Parallel", 9, 12),
    Sketcher.Constraint("Parallel", 10, 13),
    Sketcher.Constraint("Parallel", 12, 15),
    Sketcher.Constraint("Parallel", 13, 16),
    Sketcher.Constraint("Parallel", 15, 18),
    Sketcher.Constraint("Parallel", 16, 19),
    Sketcher.Constraint("Parallel", 18, 21),
    Sketcher.Constraint("Parallel", 19, 22),
    Sketcher.Constraint("Perpendicular", 22, 24),
    Sketcher.Constraint("Perpendicular", 21, 26),
    Sketcher.Constraint("Parallel", 24, 27),
    Sketcher.Constraint("Parallel", 26, 29),
    Sketcher.Constraint("Parallel", 27, 30),
    Sketcher.Constraint("Parallel", 29, 32),
    Sketcher.Constraint("Parallel", 30, 33),
    Sketcher.Constraint("Parallel", 32, 35),
    Sketcher.Constraint("Horizontal", 2, 2, 4, 2),
    Sketcher.Constraint("Horizontal", 1, 2, 5, 2),
    Sketcher.Constraint("Horizontal", 8, 2, 10, 2),
    Sketcher.Constraint("Horizontal", 7, 2, 11, 2),
    Sketcher.Constraint("Horizontal", 0, 2, 12, 2),
    Sketcher.Constraint("Horizontal", 5, 2, 13, 2),
    Sketcher.Constraint("Horizontal", 4, 2, 14, 2),
    Sketcher.Constraint("Horizontal", 3, 2, 15, 2),
    Sketcher.Constraint("Horizontal", 14, 2, 16, 2),
    Sketcher.Constraint("Horizontal", 6, 2, 18, 2),
    Sketcher.Constraint("Horizontal", 11, 2, 19, 2),
    Sketcher.Constraint("Horizontal", 10, 2, 20, 2),
    Sketcher.Constraint("Horizontal", 9, 2, 21, 2),
    Sketcher.Constraint("Horizontal", 20, 2, 22, 2),
    Sketcher.Constraint("Horizontal", 26, 2, 29, 2),
    Sketcher.Constraint("Horizontal", 32, 2, 35, 2),
    Sketcher.Constraint("Vertical", 0, 2, 3, 2),
    Sketcher.Constraint("Vertical", 3, 2, 6, 2),
    Sketcher.Constraint("Vertical", 2, 2, 7, 2),
    Sketcher.Constraint("Vertical", 15, 2, 18, 2),
    Sketcher.Constraint("Vertical", 25, 2, 27, 2),
    Sketcher.Constraint("Vertical", 28, 2, 30, 2),
    Sketcher.Constraint("Vertical", 27, 2, 31, 2),
    Sketcher.Constraint("Vertical", 26, 2, 32, 2),
    Sketcher.Constraint("Vertical", 31, 2, 33, 2),
    Sketcher.Constraint("Equal", 34, 2),
    Sketcher.Constraint("Equal", 5, 8),
    Sketcher.Constraint("Equal", 22, 24),
    Sketcher.Constraint("Angle", 0, Q("150 deg")),
    Sketcher.Constraint("DistanceX", 0, 2, -1, 1, 20.0),
    Sketcher.Constraint("DistanceX", -1, 1, 12, 2, 80.0),
    Sketcher.Constraint("DistanceY", -1, 1, 26, 2, 40.0),
    Sketcher.Constraint("DistanceY", -1, 1, 32, 2, 5.0),
    Sketcher.Constraint("DistanceY", 7, 2, 1, 2, 35.0),
    Sketcher.Constraint("DistanceX", 2, 2, 4, 2, 5.5),
    Sketcher.Constraint("DistanceX", 25, 2, 25, 1, 3.175426),
    Sketcher.Constraint("DistanceY", -1, 1, 0, 2, 93.175426),
    Sketcher.Constraint("DistanceX", -1, 1, 24, 2, 11.587713),
])
pocket6 = body.newObject("PartDesign::Pocket", "Pocket005")
pocket6.Profile = sketch7
pocket6.Length = 7

doc.recompute()
